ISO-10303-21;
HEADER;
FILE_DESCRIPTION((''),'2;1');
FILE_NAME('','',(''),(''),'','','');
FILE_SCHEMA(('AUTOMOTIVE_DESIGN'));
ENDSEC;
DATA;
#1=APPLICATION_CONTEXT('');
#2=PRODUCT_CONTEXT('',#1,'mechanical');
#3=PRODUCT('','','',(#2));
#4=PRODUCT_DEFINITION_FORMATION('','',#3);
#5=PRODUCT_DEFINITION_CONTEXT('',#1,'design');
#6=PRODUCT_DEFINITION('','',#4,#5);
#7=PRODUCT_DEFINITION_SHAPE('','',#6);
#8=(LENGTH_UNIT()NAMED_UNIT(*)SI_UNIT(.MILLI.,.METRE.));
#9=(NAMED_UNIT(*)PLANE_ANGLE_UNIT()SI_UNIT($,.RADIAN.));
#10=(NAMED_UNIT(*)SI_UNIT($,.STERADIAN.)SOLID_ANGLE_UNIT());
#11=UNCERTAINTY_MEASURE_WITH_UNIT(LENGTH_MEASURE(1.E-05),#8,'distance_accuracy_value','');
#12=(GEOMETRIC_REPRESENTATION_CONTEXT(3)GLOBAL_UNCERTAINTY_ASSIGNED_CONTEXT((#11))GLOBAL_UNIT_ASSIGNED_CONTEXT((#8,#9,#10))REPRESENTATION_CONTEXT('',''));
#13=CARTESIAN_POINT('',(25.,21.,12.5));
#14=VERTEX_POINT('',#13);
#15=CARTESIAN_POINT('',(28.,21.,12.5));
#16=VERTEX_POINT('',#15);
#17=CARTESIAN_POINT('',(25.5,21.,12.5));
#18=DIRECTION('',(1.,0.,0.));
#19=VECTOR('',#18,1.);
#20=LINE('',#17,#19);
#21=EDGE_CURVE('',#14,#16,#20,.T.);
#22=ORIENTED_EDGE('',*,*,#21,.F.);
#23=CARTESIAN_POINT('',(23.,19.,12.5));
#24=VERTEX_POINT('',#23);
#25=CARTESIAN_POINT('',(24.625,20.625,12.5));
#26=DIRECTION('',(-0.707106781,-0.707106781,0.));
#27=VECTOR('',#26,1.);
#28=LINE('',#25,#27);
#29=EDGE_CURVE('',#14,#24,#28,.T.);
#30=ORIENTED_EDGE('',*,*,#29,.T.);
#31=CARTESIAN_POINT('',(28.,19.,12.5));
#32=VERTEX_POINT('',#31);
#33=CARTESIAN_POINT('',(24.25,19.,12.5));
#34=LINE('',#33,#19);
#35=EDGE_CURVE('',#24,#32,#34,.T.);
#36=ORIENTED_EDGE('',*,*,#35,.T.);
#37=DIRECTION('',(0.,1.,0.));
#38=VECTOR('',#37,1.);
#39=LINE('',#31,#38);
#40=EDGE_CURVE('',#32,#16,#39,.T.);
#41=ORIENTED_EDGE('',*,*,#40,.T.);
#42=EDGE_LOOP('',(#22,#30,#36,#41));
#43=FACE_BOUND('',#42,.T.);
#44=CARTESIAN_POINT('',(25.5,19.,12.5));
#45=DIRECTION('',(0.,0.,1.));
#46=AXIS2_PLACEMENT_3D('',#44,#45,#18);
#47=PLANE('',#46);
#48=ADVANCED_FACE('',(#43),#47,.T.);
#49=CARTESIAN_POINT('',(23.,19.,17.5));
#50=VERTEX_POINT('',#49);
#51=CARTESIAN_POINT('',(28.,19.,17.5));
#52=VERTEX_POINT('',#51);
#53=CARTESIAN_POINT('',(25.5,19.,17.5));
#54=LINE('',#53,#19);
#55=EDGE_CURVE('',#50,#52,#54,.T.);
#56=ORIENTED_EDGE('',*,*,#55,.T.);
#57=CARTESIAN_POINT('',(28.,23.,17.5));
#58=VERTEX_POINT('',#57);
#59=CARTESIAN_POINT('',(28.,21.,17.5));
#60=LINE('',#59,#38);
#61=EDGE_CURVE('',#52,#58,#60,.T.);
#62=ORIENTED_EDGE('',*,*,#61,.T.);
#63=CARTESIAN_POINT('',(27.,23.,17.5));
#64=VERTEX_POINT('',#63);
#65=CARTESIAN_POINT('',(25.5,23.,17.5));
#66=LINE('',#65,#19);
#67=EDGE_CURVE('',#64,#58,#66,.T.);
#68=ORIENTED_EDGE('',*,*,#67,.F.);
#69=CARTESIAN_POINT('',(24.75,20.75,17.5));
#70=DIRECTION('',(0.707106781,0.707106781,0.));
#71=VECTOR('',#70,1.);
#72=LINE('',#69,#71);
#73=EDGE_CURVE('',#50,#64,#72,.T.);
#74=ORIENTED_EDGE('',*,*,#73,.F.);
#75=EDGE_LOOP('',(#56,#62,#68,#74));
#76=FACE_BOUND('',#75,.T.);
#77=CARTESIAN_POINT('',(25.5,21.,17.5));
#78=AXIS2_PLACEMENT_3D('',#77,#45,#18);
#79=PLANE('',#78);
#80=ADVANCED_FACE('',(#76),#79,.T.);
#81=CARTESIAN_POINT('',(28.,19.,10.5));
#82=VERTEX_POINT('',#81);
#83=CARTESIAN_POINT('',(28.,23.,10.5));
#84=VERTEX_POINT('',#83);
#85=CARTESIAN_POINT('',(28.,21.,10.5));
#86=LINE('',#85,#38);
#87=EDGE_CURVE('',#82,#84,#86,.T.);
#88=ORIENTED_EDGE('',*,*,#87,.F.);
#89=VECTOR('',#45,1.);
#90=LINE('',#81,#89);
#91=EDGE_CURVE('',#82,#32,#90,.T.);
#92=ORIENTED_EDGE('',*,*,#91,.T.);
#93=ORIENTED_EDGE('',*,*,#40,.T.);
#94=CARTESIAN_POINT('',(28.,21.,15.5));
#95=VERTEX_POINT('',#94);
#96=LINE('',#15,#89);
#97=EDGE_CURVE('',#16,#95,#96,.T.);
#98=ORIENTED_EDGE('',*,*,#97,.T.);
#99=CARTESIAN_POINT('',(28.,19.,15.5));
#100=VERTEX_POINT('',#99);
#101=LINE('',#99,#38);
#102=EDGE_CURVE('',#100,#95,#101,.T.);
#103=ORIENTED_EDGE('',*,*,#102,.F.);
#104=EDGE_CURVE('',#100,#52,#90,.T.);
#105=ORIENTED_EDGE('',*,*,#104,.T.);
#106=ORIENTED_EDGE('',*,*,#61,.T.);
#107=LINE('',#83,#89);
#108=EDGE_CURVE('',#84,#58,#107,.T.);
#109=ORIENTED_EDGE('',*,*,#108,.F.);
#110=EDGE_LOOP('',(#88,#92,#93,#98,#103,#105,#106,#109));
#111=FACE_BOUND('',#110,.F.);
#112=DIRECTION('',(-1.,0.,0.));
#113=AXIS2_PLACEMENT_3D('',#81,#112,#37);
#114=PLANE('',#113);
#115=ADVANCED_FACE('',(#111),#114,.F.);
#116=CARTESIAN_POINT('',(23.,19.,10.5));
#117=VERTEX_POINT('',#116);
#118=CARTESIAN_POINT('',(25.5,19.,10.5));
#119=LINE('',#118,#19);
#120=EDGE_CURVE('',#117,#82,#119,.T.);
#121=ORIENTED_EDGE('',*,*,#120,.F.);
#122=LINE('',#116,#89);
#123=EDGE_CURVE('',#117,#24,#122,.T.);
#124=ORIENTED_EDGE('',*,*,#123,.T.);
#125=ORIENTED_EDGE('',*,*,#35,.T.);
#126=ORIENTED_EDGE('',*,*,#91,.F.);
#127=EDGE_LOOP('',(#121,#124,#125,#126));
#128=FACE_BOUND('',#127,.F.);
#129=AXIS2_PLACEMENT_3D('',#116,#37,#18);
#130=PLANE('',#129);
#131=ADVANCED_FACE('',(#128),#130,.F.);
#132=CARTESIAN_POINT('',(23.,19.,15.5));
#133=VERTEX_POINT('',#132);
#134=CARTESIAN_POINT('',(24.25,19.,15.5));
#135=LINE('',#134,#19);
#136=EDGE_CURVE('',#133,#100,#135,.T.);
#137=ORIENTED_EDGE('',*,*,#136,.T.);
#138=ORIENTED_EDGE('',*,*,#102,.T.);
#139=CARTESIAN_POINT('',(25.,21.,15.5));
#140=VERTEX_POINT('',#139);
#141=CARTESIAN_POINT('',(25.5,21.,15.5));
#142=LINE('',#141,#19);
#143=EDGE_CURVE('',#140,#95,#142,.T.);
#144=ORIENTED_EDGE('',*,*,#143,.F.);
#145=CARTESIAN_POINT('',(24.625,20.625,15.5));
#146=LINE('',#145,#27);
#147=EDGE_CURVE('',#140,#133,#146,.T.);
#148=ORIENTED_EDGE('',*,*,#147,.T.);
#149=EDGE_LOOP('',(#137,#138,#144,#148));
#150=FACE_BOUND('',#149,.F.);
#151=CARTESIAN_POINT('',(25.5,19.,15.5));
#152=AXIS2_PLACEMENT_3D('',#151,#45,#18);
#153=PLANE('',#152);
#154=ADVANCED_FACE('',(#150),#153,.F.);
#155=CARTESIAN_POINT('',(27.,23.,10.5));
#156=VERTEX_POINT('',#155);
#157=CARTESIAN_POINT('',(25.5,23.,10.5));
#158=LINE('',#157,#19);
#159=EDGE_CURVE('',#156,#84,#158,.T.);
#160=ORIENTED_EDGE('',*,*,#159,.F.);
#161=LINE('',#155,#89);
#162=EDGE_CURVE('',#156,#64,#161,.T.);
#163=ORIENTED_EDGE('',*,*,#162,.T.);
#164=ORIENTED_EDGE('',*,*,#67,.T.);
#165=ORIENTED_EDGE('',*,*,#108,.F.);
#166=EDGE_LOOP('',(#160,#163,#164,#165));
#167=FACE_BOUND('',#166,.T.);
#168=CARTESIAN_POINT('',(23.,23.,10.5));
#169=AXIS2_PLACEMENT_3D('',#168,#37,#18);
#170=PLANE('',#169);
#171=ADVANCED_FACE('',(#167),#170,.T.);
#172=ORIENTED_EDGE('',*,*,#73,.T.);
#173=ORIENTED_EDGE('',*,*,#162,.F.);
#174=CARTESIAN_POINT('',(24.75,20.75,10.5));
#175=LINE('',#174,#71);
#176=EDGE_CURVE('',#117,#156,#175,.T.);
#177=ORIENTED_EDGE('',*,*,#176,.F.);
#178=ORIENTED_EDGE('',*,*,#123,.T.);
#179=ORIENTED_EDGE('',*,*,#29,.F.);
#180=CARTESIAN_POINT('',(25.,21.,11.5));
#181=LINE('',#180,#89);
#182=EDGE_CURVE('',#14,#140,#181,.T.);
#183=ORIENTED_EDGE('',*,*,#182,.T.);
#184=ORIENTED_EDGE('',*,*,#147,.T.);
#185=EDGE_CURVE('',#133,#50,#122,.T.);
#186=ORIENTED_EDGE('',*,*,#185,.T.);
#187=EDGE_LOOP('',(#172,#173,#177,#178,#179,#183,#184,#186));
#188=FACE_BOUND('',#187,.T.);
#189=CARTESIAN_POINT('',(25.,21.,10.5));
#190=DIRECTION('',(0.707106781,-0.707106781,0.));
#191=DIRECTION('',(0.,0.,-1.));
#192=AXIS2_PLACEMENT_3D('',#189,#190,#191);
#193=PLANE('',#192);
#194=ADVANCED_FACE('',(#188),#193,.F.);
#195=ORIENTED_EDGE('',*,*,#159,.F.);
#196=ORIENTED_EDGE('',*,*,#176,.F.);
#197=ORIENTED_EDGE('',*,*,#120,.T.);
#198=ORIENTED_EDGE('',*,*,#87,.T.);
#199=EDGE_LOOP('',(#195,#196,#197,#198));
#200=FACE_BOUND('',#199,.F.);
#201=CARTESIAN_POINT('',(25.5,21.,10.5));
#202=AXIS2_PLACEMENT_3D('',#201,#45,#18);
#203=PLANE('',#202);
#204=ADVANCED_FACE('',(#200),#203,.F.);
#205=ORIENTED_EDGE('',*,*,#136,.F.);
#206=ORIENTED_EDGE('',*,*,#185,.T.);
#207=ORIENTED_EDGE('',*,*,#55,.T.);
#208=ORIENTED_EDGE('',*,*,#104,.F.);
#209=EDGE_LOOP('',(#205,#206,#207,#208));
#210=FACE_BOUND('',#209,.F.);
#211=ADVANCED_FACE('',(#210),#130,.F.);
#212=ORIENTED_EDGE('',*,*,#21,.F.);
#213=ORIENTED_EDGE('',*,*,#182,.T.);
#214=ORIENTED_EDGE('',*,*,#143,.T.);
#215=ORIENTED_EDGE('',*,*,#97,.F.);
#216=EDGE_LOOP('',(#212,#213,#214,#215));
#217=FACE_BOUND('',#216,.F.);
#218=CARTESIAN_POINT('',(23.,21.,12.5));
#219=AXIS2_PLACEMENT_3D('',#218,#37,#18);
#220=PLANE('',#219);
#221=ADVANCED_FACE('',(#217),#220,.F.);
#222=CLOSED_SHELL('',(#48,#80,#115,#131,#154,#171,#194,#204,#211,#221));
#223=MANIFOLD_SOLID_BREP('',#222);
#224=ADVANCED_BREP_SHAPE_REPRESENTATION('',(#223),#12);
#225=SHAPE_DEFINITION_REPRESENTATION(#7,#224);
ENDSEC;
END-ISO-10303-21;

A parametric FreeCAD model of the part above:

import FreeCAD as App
import Part
import Sketcher

V = App.Vector


def edges_at(feature, points):
    """Names of the edges that pass closest to the given points."""
    edges = feature.Shape.Edges
    near = lambda p: min(range(len(edges)), key=lambda i: edges[i].distToShape(Part.Vertex(*p))[0])
    return sorted({f"Edge{near(p) + 1}" for p in points})

doc = App.newDocument("Part")
params = doc.addObject("Spreadsheet::Sheet", "Params")
for row, (alias, value) in enumerate([
    ("sketch1_width", "9 mm"),
    ("sketch1_height", "7 mm"),
    ("pad1_length", "7 mm"),
    ("chamfer_size", "4 mm"),
    ("sketch2_width", "5 mm"),
    ("sketch2_height", "4 mm"),
    ("pad2_length", "3 mm"),
    ("sketch3_width", "5 mm"),
    ("sketch3_height", "4 mm"),
    ("pad3_length", "7 mm"),
], start=1):
    params.set(f"A{row}", alias)
    params.set(f"B{row}", "=" + value)
    params.setAlias(f"B{row}", alias)

body = doc.addObject("PartDesign::Body", "Body")

sketch1 = body.newObject("Sketcher::SketchObject", "Sketch")
sketch1.AttachmentSupport = (doc.getObject("XY_Plane"), [""])
sketch1.MapMode = "FlatFace"
sketch1.addGeometry([
    Part.LineSegment(V(23, 37, 0), V(23, 30, 0)),
    Part.LineSegment(V(23, 30, 0), V(32, 30, 0)),
    Part.LineSegment(V(32, 30, 0), V(32, 37, 0)),
    Part.LineSegment(V(32, 37, 0), V(23, 37, 0)),
], False)
sketch1.addConstraint([
    Sketcher.Constraint("Coincident", 0, 2, 1, 1),
    Sketcher.Constraint("Coincident", 1, 2, 2, 1),
    Sketcher.Constraint("Coincident", 2, 2, 3, 1),
    Sketcher.Constraint("Coincident", 3, 2, 0, 1),
    Sketcher.Constraint("Vertical", 0),
    Sketcher.Constraint("Horizontal", 1),
    Sketcher.Constraint("Vertical", 2),
    Sketcher.Constraint("Horizontal", 3),
    Sketcher.Constraint("DistanceX", 1, 1, 1, 2, 9.0),
    Sketcher.Constraint("DistanceY", 0, 2, 0, 1, 7.0),
    Sketcher.Constraint("DistanceX", -1, 1, 0, 2, 23.0),
    Sketcher.Constraint("DistanceY", -1, 1, 0, 2, 30.0),
])
sketch1.setExpression("Constraints[8]", "Params.sketch1_width")
sketch1.setExpression("Constraints[9]", "Params.sketch1_height")
pad1 = body.newObject("PartDesign::Pad", "Pad")
pad1.Profile = sketch1
pad1.setExpression("Length", "Params.pad1_length")
doc.recompute()

chamfer = body.newObject("PartDesign::Chamfer", "Chamfer")
chamfer.Base = (pad1, edges_at(pad1, [(32, 30, 3.5)]))
chamfer.setExpression("Size", "Params.chamfer_size")
body2 = doc.addObject("PartDesign::Body", "Body001")
doc.recompute()

body.Placement = App.Placement(V(-5, -11, 0), App.Rotation(V(0, 0, 1), 0))
boolean = body2.newObject("PartDesign::Boolean", "Boolean")
boolean.Type = "Fuse"
boolean.addObjects([body])
body3 = doc.addObject("PartDesign::Body", "Body002")

sketch2 = body3.newObject("Sketcher::SketchObject", "Sketch001")
sketch2.AttachmentSupport = (doc.getObject("XY_Plane002"), [""])
sketch2.MapMode = "FlatFace"
sketch2.AttachmentOffset = App.Placement(V(0, 0, 2), App.Rotation())
sketch2.addGeometry([
    Part.LineSegment(V(23, 21, 0), V(23, 17, 0)),
    Part.LineSegment(V(23, 17, 0), V(28, 17, 0)),
    Part.LineSegment(V(28, 17, 0), V(28, 21, 0)),
    Part.LineSegment(V(28, 21, 0), V(23, 21, 0)),
], False)
sketch2.addConstraint([
    Sketcher.Constraint("Coincident", 0, 2, 1, 1),
    Sketcher.Constraint("Coincident", 1, 2, 2, 1),
    Sketcher.Constraint("Coincident", 2, 2, 3, 1),
    Sketcher.Constraint("Coincident", 3, 2, 0, 1),
    Sketcher.Constraint("Vertical", 0),
    Sketcher.Constraint("Horizontal", 1),
    Sketcher.Constraint("Vertical", 2),
    Sketcher.Constraint("Horizontal", 3),
    Sketcher.Constraint("DistanceX", 1, 1, 1, 2, 5.0),
    Sketcher.Constraint("DistanceY", 0, 2, 0, 1, 4.0),
    Sketcher.Constraint("DistanceX", -1, 1, 0, 2, 23.0),
    Sketcher.Constraint("DistanceY", -1, 1, 0, 2, 17.0),
])
sketch2.setExpression("Constraints[8]", "Params.sketch2_width")
sketch2.setExpression("Constraints[9]", "Params.sketch2_height")
pad2 = body3.newObject("PartDesign::Pad", "Pad001")
pad2.Profile = sketch2
pad2.setExpression("Length", "Params.pad2_length")
body4 = doc.addObject("PartDesign::Body", "Body003")

sketch3 = body4.newObject("Sketcher::SketchObject", "Sketch002")
sketch3.AttachmentSupport = (doc.getObject("XY_Plane003"), [""])
sketch3.MapMode = "FlatFace"
sketch3.addGeometry([
    Part.LineSegment(V(23, 23, 0), V(23, 19, 0)),
    Part.LineSegment(V(23, 19, 0), V(28, 19, 0)),
    Part.LineSegment(V(28, 19, 0), V(28, 23, 0)),
    Part.LineSegment(V(28, 23, 0), V(23, 23, 0)),
], False)
sketch3.addConstraint([
    Sketcher.Constraint("Coincident", 0, 2, 1, 1),
    Sketcher.Constraint("Coincident", 1, 2, 2, 1),
    Sketcher.Constraint("Coincident", 2, 2, 3, 1),
    Sketcher.Constraint("Coincident", 3, 2, 0, 1),
    Sketcher.Constraint("Vertical", 0),
    Sketcher.Constraint("Horizontal", 1),
    Sketcher.Constraint("Vertical", 2),
    Sketcher.Constraint("Horizontal", 3),
    Sketcher.Constraint("DistanceX", 1, 1, 1, 2, 5.0),
    Sketcher.Constraint("DistanceY", 0, 2, 0, 1, 4.0),
    Sketcher.Constraint("DistanceX", -1, 1, 0, 2, 23.0),
    Sketcher.Constraint("DistanceY", -1, 1, 0, 2, 19.0),
])
sketch3.setExpression("Constraints[8]", "Params.sketch3_width")
sketch3.setExpression("Constraints[9]", "Params.sketch3_height")
pad3 = body4.newObject("PartDesign::Pad", "Pad002")
pad3.Profile = sketch3
pad3.setExpression("Length", "Params.pad3_length")
doc.recompute()

boolean2 = body4.newObject("PartDesign::Boolean", "Boolean001")
boolean2.Type = "Cut"
boolean2.addObjects([body3])
doc.recompute()

boolean3 = body4.newObject("PartDesign::Boolean", "Boolean002")
boolean3.Type = "Cut"
boolean3.addObjects([body2])
body5 = doc.addObject("PartDesign::Body", "Body004")
doc.recompute()

body4.Placement = App.Placement(V(0, 0, 10.5), App.Rotation(V(0, 0, 1), 0))
boolean4 = body5.newObject("PartDesign::Boolean", "Boolean003")
boolean4.Type = "Fuse"
boolean4.addObjects([body4])

doc.recompute()
